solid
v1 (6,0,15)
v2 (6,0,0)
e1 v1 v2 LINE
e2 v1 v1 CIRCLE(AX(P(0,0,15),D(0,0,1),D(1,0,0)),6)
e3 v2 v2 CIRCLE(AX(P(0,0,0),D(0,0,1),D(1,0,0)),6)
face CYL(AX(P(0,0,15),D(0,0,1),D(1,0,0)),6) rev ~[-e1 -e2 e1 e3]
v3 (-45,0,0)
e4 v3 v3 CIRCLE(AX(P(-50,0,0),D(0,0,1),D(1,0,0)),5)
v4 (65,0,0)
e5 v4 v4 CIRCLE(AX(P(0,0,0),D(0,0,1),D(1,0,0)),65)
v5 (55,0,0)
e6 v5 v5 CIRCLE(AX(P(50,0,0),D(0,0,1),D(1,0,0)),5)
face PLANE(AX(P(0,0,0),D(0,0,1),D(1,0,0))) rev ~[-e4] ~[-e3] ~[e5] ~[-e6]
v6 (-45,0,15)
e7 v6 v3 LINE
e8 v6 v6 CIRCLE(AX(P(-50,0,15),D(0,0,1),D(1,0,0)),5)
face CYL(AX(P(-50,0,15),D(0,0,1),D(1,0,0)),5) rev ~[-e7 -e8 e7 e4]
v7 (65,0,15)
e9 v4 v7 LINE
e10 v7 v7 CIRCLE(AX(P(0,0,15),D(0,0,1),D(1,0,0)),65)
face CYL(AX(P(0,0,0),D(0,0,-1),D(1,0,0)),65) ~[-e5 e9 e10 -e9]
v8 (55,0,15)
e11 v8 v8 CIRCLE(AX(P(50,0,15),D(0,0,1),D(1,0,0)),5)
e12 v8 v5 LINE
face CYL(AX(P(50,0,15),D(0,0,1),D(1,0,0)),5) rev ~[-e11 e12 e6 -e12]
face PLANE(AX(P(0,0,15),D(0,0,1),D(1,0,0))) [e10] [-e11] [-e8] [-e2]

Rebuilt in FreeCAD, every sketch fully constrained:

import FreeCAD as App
import Part
import Sketcher

V = App.Vector
Q = App.Units.Quantity

doc = App.newDocument("Part")
params = doc.addObject("Spreadsheet::Sheet", "Params")
for row, (alias, value) in enumerate([
    ("sketch1_diameter", "130 mm"),
    ("pad1_length", "15 mm"),
    ("sketch2_diameter", "12 mm"),
    ("pocket1_length", "15 mm"),
    ("sketch3_diameter", "10 mm"),
    ("pocket2_length", "15 mm"),
], start=1):
    params.set(f"A{row}", alias)
    params.set(f"B{row}", "=" + value)
    params.setAlias(f"B{row}", alias)

body = doc.addObject("PartDesign::Body", "Body")

# Sketch on XY plane
sketch1 = body.newObject("Sketcher::SketchObject", "Sketch")
sketch1.AttachmentSupport = (doc.getObject("XY_Plane"), [""])
sketch1.MapMode = "FlatFace"
sketch1.addGeometry(Part.Circle(V(0, 0, 0), V(0, 0, 1), 65), False)
sketch1.addConstraint([
    Sketcher.Constraint("Coincident", 0, 3, -1, 1),
    Sketcher.Constraint("Diameter", 0, Q("130 mm")),
])
sketch1.setExpression("Constraints[1]", "Params.sketch1_diameter")
pad1 = body.newObject("PartDesign::Pad", "Pad")
pad1.Profile = sketch1
pad1.setExpression("Length", "Params.pad1_length")

# Sketch on XY plane
sketch2 = body.newObject("Sketcher::SketchObject", "Sketch001")
sketch2.AttachmentSupport = (doc.getObject("XY_Plane"), [""])
sketch2.MapMode = "FlatFace"
sketch2.AttachmentOffset = App.Placement(V(0, 0, 15), App.Rotation())
sketch2.addGeometry(Part.Circle(V(0, 0, 0), V(0, 0, 1), 6), False)
sketch2.addConstraint([
    Sketcher.Constraint("Coincident", 0, 3, -1, 1),
    Sketcher.Constraint("Diameter", 0, Q("12 mm")),
])
sketch2.setExpression("Constraints[1]", "Params.sketch2_diameter")
pocket1 = body.newObject("PartDesign::Pocket", "Pocket")
pocket1.Profile = sketch2
pocket1.setExpression("Length", "Params.pocket1_length")

# Sketch on XY plane
sketch3 = body.newObject("Sketcher::SketchObject", "Sketch002")
sketch3.AttachmentSupport = (doc.getObject("XY_Plane"), [""])
sketch3.MapMode = "FlatFace"
sketch3.AttachmentOffset = App.Placement(V(0, 0, 15), App.Rotation())
sketch3.addGeometry([
    Part.Circle(V(50, 0, 0), V(0, 0, 1), 5),
    Part.Circle(V(-50, 0, 0), V(0, 0, 1), 5),
], False)
sketch3.addConstraint([
    Sketcher.Constraint("Equal", 0, 1),
    Sketcher.Constraint("Symmetric", 0, 3, 1, 3, -1, 1),
    Sketcher.Constraint("PointOnObject", 0, 3, -1),
    Sketcher.Constraint("Diameter", 0, Q("10 mm")),
    Sketcher.Constraint("DistanceX", -1, 1, 0, 3, Q("50 mm")),
])
sketch3.setExpression("Constraints[3]", "Params.sketch3_diameter")
pocket2 = body.newObject("PartDesign::Pocket", "Pocket001")
pocket2.Profile = sketch3
pocket2.setExpression("Length", "Params.pocket2_length")

doc.recompute()
